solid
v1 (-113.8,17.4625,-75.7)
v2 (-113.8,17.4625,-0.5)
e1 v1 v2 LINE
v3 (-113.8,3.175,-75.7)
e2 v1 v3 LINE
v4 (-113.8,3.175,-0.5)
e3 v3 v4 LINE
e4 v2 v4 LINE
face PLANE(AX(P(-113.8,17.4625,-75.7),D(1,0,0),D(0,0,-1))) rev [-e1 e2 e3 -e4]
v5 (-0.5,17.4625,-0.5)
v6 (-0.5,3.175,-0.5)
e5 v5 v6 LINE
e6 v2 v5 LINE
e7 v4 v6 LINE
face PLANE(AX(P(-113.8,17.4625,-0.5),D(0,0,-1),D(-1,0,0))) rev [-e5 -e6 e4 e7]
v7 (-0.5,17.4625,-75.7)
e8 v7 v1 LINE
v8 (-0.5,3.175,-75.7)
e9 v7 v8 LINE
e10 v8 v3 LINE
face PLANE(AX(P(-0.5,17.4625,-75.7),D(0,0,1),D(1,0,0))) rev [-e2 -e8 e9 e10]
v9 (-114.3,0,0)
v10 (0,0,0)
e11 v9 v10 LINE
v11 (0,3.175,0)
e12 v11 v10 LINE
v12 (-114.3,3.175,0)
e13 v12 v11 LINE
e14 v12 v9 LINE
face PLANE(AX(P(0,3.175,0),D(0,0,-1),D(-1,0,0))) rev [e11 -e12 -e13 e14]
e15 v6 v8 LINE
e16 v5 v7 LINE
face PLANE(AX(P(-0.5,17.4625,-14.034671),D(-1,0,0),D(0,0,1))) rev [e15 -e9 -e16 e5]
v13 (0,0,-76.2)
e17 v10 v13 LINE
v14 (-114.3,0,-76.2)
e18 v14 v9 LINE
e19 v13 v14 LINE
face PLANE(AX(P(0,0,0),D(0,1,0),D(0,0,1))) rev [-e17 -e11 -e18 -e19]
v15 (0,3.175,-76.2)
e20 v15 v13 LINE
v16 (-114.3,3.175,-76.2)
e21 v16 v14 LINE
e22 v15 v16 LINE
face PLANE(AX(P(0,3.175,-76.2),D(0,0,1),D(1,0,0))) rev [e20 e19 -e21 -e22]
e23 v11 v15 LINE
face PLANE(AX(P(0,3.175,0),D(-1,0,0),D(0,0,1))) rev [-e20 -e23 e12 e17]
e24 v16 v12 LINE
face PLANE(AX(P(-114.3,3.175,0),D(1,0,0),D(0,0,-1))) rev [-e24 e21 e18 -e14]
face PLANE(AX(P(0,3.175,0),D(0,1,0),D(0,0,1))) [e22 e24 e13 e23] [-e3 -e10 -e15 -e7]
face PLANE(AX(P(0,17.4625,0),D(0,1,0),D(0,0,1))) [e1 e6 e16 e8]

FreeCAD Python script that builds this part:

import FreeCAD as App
import Part
import Sketcher
Q = App.Units.Quantity

doc = App.newDocument("Part")
params = doc.addObject("Spreadsheet::Sheet", "Params")
for row, (alias, value) in enumerate([
    ("sketch1_height", "3 in"),
    ("sketch1_width", "4.5 in"),
    ("pad1_length", "0.125 in"),
    ("pad2_length", "0.5625 in"),
], start=1):
    params.set(f"A{row}", alias)
    params.set(f"B{row}", "=" + value)
    params.setAlias(f"B{row}", alias)

body = doc.addObject("PartDesign::Body", "Body")

# Sketch on XZ plane
sketch1 = body.newObject("Sketcher::SketchObject", "Sketch")
sketch1.AttachmentSupport = (doc.getObject("XZ_Plane"), [""])
sketch1.MapMode = "FlatFace"
sketch1.addGeometry([
    Part.LineSegment(App.Vector(-114, -76, 0), App.Vector(-114, 0, 0)),
    Part.LineSegment(App.Vector(-114, 0, 0), App.Vector(0, 0, 0)),
    Part.LineSegment(App.Vector(0, 0, 0), App.Vector(0, -76, 0)),
    Part.LineSegment(App.Vector(0, -76, 0), App.Vector(-114, -76, 0)),
], False)
sketch1.addConstraint([
    Sketcher.Constraint("Coincident", 0, 2, 1, 1),
    Sketcher.Constraint("Coincident", 1, 2, 2, 1),
    Sketcher.Constraint("Coincident", 2, 2, 3, 1),
    Sketcher.Constraint("Coincident", 3, 2, 0, 1),
    Sketcher.Constraint("Vertical", 0),
    Sketcher.Constraint("Horizontal", 1),
    Sketcher.Constraint("Vertical", 2),
    Sketcher.Constraint("Horizontal", 3),
    Sketcher.Constraint("Coincident", 1, 2, -1, 1),
    Sketcher.Constraint("DistanceY", 0, 1, 0, 2, Q("3 in")),
    Sketcher.Constraint("DistanceX", 1, 1, 1, 2, Q("4.5 in")),
])
sketch1.setExpression("Constraints[9]", "Params.sketch1_height")
sketch1.setExpression("Constraints[10]", "Params.sketch1_width")
pad1 = body.newObject("PartDesign::Pad", "Pad")
pad1.Profile = sketch1
pad1.setExpression("Length", "Params.pad1_length")
pad1.Reversed = True

# Sketch on XZ plane
sketch2 = body.newObject("Sketcher::SketchObject", "Sketch001")
sketch2.AttachmentSupport = (doc.getObject("XZ_Plane"), [""])
sketch2.MapMode = "FlatFace"
sketch2.AttachmentOffset = App.Placement(App.Vector(0, 0, -0.125 * 25.4), App.Rotation())
sketch2.addGeometry([
    Part.LineSegment(App.Vector(0, -76, 0), App.Vector(-114, -76, 0)),
    Part.LineSegment(App.Vector(-114, -76, 0), App.Vector(-114, 0, 0)),
    Part.LineSegment(App.Vector(-114, 0, 0), App.Vector(0, 0, 0)),
    Part.LineSegment(App.Vector(0, 0, 0), App.Vector(0, -76, 0)),
], False)
sketch2.addConstraint([
    Sketcher.Constraint("Coincident", 0, 2, 1, 1),
    Sketcher.Constraint("Coincident", 1, 2, 2, 1),
    Sketcher.Constraint("Coincident", 2, 2, 3, 1),
    Sketcher.Constraint("Coincident", 3, 2, 0, 1),
    Sketcher.Constraint("Horizontal", 0),
    Sketcher.Constraint("Vertical", 1),
    Sketcher.Constraint("Horizontal", 2),
    Sketcher.Constraint("Vertical", 3),
    Sketcher.Constraint("DistanceX", 0, 2, 0, 1, 113.3),
    Sketcher.Constraint("DistanceY", 1, 1, 1, 2, 75.2),
    Sketcher.Constraint("DistanceX", 0, 2, -1, 1, 113.8),
    Sketcher.Constraint("DistanceY", 0, 2, -1, 1, 75.7),
])
pad2 = body.newObject("PartDesign::Pad", "Pad001")
pad2.Profile = sketch2
pad2.setExpression("Length", "Params.pad2_length")
pad2.Reversed = True

doc.recompute()
